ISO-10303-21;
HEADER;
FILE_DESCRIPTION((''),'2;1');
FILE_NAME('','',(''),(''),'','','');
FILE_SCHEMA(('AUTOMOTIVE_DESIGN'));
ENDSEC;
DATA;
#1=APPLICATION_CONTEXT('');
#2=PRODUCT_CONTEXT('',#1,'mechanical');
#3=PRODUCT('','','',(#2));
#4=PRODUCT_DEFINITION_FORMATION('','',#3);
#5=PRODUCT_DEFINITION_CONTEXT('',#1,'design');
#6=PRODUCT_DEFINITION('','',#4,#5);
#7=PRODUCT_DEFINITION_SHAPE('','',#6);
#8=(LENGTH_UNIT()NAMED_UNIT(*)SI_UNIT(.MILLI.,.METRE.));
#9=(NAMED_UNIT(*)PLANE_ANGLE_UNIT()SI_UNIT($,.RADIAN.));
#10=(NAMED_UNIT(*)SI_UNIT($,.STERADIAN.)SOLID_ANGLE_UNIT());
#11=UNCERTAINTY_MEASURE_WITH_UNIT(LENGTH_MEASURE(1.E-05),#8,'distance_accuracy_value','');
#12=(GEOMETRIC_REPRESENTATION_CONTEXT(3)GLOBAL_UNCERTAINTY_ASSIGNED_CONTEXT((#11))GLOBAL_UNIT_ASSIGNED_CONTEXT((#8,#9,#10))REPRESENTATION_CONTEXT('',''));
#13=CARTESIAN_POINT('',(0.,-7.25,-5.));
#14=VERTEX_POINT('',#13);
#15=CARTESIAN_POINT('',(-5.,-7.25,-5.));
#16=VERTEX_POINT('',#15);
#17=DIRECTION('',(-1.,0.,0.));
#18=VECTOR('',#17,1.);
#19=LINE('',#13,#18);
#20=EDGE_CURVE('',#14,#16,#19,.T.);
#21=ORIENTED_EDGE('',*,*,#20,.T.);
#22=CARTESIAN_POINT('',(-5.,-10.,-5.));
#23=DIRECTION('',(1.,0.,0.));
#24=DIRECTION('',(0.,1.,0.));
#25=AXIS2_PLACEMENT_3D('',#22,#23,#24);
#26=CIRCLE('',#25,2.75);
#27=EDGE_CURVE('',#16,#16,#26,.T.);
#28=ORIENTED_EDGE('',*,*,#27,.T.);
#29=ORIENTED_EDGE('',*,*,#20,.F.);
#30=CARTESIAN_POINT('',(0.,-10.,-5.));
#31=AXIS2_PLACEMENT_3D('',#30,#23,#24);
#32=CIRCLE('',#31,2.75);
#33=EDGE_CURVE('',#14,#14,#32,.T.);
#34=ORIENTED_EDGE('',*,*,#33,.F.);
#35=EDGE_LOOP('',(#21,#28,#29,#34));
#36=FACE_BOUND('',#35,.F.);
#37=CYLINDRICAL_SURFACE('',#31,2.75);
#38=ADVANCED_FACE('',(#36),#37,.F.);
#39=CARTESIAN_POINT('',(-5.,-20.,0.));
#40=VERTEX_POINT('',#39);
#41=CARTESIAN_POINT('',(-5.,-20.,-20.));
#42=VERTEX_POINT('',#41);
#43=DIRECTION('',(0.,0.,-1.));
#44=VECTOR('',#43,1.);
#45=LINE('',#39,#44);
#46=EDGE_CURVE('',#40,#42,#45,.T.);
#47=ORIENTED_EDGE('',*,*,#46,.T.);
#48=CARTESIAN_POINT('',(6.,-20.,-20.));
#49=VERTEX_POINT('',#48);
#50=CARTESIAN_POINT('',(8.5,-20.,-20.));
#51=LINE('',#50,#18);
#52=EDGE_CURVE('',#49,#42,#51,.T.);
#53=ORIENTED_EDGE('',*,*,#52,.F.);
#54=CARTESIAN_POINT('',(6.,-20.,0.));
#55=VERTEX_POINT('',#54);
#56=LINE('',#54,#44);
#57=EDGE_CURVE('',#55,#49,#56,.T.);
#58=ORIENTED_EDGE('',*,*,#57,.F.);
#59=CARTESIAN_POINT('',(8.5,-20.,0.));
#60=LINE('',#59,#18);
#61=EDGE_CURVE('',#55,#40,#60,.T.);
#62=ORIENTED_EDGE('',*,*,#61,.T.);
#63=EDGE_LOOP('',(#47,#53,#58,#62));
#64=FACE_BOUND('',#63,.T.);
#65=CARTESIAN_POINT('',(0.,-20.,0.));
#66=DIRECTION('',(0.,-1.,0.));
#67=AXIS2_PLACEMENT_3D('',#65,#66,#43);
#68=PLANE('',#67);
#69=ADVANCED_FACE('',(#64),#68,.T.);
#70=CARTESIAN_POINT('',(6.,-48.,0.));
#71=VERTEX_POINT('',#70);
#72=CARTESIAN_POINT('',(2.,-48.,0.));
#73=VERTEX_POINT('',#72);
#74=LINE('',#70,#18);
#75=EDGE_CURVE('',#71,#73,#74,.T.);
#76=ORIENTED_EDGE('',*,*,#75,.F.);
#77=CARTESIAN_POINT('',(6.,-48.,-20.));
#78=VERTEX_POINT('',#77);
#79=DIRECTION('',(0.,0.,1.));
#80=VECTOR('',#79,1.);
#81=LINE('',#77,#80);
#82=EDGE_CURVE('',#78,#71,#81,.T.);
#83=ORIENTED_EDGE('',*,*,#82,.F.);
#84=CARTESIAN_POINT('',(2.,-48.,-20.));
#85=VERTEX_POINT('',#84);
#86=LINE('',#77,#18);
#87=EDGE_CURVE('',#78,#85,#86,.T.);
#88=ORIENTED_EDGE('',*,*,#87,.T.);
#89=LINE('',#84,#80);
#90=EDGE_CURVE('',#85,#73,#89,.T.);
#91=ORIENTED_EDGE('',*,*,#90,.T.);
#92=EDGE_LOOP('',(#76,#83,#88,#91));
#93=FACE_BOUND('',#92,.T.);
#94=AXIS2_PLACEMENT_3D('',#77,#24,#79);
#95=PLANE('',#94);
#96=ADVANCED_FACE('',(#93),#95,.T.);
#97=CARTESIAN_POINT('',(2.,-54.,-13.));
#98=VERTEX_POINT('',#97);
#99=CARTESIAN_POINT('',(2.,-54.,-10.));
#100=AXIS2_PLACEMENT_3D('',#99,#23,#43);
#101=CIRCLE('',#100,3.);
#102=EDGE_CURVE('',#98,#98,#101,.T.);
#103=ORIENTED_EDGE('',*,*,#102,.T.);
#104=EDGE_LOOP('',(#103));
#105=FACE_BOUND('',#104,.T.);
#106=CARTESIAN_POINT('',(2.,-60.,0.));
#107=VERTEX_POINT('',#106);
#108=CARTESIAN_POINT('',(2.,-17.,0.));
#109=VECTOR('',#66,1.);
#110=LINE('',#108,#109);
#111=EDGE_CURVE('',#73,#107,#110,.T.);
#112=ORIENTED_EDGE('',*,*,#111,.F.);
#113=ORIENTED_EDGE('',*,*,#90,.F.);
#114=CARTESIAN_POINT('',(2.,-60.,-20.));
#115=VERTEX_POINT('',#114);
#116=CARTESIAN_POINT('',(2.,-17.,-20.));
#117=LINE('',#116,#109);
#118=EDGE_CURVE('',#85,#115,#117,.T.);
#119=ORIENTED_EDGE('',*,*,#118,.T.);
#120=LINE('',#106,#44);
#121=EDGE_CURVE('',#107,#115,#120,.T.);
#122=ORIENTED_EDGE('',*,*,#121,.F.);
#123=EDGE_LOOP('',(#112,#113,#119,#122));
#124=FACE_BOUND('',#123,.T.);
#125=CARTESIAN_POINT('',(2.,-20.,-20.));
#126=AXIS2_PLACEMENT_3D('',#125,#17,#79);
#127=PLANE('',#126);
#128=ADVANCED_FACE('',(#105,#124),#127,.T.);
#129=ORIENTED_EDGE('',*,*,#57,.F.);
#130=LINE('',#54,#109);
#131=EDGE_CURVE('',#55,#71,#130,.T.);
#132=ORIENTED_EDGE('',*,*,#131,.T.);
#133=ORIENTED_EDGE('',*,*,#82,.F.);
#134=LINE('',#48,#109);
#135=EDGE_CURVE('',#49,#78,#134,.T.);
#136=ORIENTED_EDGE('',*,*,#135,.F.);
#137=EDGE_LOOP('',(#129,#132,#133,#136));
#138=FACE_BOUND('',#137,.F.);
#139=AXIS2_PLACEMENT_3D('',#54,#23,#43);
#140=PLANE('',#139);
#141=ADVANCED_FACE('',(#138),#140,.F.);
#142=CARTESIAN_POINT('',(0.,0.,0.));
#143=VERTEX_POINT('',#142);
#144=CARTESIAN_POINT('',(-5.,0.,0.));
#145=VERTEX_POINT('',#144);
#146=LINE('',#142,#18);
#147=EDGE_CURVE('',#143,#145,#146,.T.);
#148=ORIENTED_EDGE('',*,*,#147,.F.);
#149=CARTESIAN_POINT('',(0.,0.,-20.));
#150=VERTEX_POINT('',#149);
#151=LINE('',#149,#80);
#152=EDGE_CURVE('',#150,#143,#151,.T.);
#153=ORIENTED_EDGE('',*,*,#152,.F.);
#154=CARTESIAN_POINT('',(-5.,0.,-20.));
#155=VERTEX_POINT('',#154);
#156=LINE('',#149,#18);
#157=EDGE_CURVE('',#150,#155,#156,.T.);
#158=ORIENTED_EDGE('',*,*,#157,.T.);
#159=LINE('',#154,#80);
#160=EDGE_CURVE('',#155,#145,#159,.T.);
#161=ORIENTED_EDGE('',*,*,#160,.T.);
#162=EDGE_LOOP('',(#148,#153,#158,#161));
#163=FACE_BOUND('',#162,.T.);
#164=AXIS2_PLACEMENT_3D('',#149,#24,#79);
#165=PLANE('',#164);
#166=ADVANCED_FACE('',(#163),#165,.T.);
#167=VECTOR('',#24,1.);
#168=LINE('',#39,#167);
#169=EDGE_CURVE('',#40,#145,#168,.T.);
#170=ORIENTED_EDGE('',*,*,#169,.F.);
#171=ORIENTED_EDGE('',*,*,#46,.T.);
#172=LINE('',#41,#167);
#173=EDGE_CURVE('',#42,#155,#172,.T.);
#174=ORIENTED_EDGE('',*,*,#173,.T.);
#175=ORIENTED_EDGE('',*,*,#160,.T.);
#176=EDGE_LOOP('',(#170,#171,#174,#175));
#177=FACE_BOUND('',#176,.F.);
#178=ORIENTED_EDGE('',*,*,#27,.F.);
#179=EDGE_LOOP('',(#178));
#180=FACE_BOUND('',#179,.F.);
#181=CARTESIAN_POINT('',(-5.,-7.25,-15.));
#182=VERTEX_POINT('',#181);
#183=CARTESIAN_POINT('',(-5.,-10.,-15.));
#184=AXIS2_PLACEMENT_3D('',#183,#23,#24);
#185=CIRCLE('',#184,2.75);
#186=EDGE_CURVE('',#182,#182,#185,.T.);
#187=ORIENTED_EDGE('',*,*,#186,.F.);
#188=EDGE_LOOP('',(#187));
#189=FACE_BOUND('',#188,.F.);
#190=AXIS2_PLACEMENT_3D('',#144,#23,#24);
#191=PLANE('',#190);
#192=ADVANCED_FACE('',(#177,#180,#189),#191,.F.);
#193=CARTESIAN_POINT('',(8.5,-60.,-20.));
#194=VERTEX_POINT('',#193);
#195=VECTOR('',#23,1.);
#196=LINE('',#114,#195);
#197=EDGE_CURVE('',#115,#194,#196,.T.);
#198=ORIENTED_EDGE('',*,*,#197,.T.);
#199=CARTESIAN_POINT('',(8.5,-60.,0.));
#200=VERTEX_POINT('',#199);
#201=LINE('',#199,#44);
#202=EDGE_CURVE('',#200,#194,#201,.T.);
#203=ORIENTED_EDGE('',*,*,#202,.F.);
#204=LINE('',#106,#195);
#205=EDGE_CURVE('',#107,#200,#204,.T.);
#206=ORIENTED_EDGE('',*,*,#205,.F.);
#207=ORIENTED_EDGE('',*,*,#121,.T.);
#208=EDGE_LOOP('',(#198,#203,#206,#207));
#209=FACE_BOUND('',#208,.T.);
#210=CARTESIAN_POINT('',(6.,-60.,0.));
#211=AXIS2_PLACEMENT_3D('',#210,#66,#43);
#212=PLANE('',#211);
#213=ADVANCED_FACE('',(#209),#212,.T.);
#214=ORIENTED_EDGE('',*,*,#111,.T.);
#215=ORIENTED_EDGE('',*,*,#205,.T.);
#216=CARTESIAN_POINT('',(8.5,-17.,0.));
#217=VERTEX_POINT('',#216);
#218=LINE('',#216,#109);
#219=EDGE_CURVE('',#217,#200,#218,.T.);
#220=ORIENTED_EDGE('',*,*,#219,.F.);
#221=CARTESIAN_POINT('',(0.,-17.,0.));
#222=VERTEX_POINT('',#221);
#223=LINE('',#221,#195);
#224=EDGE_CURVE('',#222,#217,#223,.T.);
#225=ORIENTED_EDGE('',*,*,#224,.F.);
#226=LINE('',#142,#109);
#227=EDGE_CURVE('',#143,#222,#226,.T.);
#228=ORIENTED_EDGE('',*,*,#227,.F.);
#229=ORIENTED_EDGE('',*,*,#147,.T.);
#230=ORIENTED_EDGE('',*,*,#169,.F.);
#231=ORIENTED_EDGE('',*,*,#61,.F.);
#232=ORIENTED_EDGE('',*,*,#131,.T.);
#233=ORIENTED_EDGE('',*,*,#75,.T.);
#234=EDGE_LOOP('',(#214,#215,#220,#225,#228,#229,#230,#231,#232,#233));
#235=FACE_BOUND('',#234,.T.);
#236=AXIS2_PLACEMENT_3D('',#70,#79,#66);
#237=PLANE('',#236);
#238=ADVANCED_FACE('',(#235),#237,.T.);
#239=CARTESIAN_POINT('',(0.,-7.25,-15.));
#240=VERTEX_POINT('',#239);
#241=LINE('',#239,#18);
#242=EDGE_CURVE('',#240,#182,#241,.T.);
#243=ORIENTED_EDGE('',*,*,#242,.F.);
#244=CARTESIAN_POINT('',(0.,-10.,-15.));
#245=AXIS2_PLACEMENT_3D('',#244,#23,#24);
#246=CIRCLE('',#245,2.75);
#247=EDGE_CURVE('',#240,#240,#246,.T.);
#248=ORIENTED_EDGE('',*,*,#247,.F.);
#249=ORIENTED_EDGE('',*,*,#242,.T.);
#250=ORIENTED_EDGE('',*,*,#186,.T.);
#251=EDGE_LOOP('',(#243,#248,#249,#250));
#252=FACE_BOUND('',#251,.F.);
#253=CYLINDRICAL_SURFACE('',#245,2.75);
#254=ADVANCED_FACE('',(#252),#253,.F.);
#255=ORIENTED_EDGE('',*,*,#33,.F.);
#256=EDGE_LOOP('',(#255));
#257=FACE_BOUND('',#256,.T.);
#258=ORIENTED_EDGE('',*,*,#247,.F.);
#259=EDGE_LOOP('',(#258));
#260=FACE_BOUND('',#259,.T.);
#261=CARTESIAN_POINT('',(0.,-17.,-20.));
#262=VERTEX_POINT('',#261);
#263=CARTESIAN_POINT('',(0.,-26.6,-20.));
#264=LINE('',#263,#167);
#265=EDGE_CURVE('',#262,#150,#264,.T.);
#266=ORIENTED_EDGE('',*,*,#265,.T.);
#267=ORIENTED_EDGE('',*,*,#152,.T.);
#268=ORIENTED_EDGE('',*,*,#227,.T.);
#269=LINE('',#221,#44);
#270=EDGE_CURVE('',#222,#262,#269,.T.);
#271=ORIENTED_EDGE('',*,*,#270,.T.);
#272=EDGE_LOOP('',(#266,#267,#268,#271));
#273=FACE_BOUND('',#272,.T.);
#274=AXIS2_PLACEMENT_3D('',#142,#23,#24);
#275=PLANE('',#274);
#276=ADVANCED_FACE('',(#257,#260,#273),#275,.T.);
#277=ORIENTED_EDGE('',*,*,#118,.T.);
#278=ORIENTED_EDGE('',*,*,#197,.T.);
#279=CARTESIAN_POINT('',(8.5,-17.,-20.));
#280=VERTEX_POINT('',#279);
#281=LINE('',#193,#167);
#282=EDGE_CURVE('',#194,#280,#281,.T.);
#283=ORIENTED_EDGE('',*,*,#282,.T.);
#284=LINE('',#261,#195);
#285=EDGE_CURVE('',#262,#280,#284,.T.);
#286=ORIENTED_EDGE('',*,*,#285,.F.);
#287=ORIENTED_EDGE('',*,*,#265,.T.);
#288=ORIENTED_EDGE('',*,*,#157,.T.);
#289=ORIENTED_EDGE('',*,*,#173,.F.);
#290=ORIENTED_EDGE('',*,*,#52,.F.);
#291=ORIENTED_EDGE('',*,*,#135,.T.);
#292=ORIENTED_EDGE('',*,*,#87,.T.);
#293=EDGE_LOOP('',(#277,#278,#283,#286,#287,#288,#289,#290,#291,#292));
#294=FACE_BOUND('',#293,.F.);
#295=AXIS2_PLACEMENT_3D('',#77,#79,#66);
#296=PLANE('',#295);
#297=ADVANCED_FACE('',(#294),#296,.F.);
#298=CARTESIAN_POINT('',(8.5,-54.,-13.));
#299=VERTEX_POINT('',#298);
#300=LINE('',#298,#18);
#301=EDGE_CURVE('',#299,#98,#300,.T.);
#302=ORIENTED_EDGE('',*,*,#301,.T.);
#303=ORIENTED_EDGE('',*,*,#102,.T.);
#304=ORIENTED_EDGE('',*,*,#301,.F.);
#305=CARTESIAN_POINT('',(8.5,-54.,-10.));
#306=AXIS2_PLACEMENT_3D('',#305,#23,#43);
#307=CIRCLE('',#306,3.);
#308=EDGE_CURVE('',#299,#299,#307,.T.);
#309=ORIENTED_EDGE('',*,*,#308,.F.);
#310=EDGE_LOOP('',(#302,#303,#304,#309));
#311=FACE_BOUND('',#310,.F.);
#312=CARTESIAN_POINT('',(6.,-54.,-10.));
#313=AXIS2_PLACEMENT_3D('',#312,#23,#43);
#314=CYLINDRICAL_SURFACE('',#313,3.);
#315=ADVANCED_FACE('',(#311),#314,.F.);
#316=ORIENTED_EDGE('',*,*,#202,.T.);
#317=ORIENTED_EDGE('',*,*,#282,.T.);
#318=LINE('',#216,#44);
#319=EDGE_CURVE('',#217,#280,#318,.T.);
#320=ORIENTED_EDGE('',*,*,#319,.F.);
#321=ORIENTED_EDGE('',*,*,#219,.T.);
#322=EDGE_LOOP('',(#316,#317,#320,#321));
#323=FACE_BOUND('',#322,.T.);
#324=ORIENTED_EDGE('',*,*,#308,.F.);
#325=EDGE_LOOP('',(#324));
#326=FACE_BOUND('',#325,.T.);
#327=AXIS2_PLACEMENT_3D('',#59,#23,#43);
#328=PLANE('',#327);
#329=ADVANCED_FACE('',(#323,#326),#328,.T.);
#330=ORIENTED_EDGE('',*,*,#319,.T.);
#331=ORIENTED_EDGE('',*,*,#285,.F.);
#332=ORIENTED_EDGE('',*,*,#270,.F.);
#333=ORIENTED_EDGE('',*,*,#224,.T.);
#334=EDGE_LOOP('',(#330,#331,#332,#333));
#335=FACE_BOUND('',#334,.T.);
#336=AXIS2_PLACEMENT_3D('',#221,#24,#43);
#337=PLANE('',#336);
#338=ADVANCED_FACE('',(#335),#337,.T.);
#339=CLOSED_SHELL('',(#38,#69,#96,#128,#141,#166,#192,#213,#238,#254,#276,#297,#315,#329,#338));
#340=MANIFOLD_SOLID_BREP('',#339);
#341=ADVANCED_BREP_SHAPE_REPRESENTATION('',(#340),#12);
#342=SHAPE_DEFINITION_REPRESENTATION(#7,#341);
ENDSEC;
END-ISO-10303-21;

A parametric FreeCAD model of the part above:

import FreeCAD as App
import Part
import Sketcher

V = App.Vector

doc = App.newDocument("Part")
body = doc.addObject("PartDesign::Body", "Body")
body.AllowCompound = True

sketch1 = doc.addObject("Sketcher::SketchObject", "Sketch")
body.addObject(sketch1)
sketch1.AttachmentSupport = (doc.YZ_Plane, [""])
sketch1.MapMode = "FlatFace"
sketch1.addGeometry([
    Part.LineSegment(V(-17, -20, 0), V(-17, 0, 0)),
    Part.LineSegment(V(-17, 0, 0), V(-20, 0, 0)),
    Part.LineSegment(V(-20, 0, 0), V(-20, -20, 0)),
    Part.LineSegment(V(-20, -20, 0), V(-17, -20, 0)),
], False)
sketch1.addConstraint([
    Sketcher.Constraint("Coincident", 0, 2, 1, 1),
    Sketcher.Constraint("Coincident", 1, 2, 2, 1),
    Sketcher.Constraint("Coincident", 2, 2, 3, 1),
    Sketcher.Constraint("Coincident", 3, 2, 0, 1),
    Sketcher.Constraint("Vertical", 0),
    Sketcher.Constraint("Horizontal", 1),
    Sketcher.Constraint("Vertical", 2),
    Sketcher.Constraint("Horizontal", 3),
    Sketcher.Constraint("PointOnObject", 0, 2, -1),
    Sketcher.Constraint("DistanceX", 1, 2, 1, 1, 3.0),
    Sketcher.Constraint("DistanceY", 0, 1, 0, 2, 20.0),
    Sketcher.Constraint("DistanceX", 1, 2, -1, 1, 20.0),
])
pad1 = doc.addObject("PartDesign::Pad", "Pad")
body.addObject(pad1)
pad1.Profile = sketch1
pad1.Length = 8.5

sketch2 = doc.addObject("Sketcher::SketchObject", "Sketch001")
body.addObject(sketch2)
sketch2.AttachmentSupport = (doc.YZ_Plane, [""])
sketch2.MapMode = "FlatFace"
sketch2.addGeometry([
    Part.LineSegment(V(0, -20, 0), V(0, 0, 0)),
    Part.LineSegment(V(0, 0, 0), V(-17, 0, 0)),
    Part.LineSegment(V(-17, 0, 0), V(-17, -20, 0)),
    Part.LineSegment(V(-17, -20, 0), V(0, -20, 0)),
    Part.Circle(V(-10, -15, 0), V(0, 0, 1), 2.8),
    Part.Circle(V(-10, -5, 0), V(0, 0, 1), 2.8),
], False)
sketch2.addConstraint([
    Sketcher.Constraint("Coincident", 0, 2, 1, 1),
    Sketcher.Constraint("Coincident", 1, 2, 2, 1),
    Sketcher.Constraint("Coincident", 2, 2, 3, 1),
    Sketcher.Constraint("Coincident", 3, 2, 0, 1),
    Sketcher.Constraint("Vertical", 0),
    Sketcher.Constraint("Horizontal", 1),
    Sketcher.Constraint("Vertical", 2),
    Sketcher.Constraint("Horizontal", 3),
    Sketcher.Constraint("Coincident", 0, 2, -1, 1),
    Sketcher.Constraint("Equal", 4, 5),
    Sketcher.Constraint("Vertical", 4, 3, 5, 3),
    Sketcher.Constraint("Diameter", 4, 5.5),
    Sketcher.Constraint("DistanceY", 0, 1, 0, 2, 20.0),
    Sketcher.Constraint("DistanceX", 4, 3, -1, 1, 10.0),
    Sketcher.Constraint("DistanceY", 5, 3, -1, 1, 5.0),
    Sketcher.Constraint("DistanceY", 4, 3, 5, 3, 10.0),
    Sketcher.Constraint("DistanceX", 1, 2, 1, 1, 17.0),
])
pad2 = doc.addObject("PartDesign::Pad", "Pad001")
body.addObject(pad2)
pad2.Profile = sketch2
pad2.Length = 5
pad2.Reversed = True

sketch3 = doc.addObject("Sketcher::SketchObject", "Sketch002")
body.addObject(sketch3)
sketch3.AttachmentSupport = (doc.YZ_Plane, [""])
sketch3.MapMode = "FlatFace"
sketch3.addGeometry([
    Part.LineSegment(V(-17, -20, 0), V(-17, 0, 0)),
    Part.LineSegment(V(-17, 0, 0), V(-20, 0, 0)),
    Part.LineSegment(V(-20, 0, 0), V(-20, -20, 0)),
    Part.LineSegment(V(-20, -20, 0), V(-17, -20, 0)),
], False)
sketch3.addConstraint([
    Sketcher.Constraint("Coincident", 0, 2, 1, 1),
    Sketcher.Constraint("Coincident", 1, 2, 2, 1),
    Sketcher.Constraint("Coincident", 2, 2, 3, 1),
    Sketcher.Constraint("Coincident", 3, 2, 0, 1),
    Sketcher.Constraint("Vertical", 0),
    Sketcher.Constraint("Horizontal", 1),
    Sketcher.Constraint("Vertical", 2),
    Sketcher.Constraint("Horizontal", 3),
    Sketcher.Constraint("PointOnObject", 0, 2, -1),
    Sketcher.Constraint("DistanceX", 1, 2, 1, 1, 3.0),
    Sketcher.Constraint("DistanceY", 0, 1, 0, 2, 20.0),
    Sketcher.Constraint("DistanceX", 1, 2, -1, 1, 20.0),
])
pad3 = doc.addObject("PartDesign::Pad", "Pad002")
body.addObject(pad3)
pad3.Profile = sketch3
pad3.Length = 5
pad3.Reversed = True

sketch4 = doc.addObject("Sketcher::SketchObject", "Sketch003")
body.addObject(sketch4)
sketch4.AttachmentSupport = (doc.XZ_Plane, [""])
sketch4.MapMode = "FlatFace"
sketch4.AttachmentOffset = App.Placement(V(0, 0, 20), App.Rotation())
sketch4.addGeometry([
    Part.LineSegment(V(8.5, -20, 0), V(8.5, 0, 0)),
    Part.LineSegment(V(8.5, 0, 0), V(6, 0, 0)),
    Part.LineSegment(V(6, 0, 0), V(6, -20, 0)),
    Part.LineSegment(V(6, -20, 0), V(8.5, -20, 0)),
], False)
sketch4.addConstraint([
    Sketcher.Constraint("Coincident", 0, 2, 1, 1),
    Sketcher.Constraint("Coincident", 1, 2, 2, 1),
    Sketcher.Constraint("Coincident", 2, 2, 3, 1),
    Sketcher.Constraint("Coincident", 3, 2, 0, 1),
    Sketcher.Constraint("Vertical", 0),
    Sketcher.Constraint("Horizontal", 1),
    Sketcher.Constraint("Vertical", 2),
    Sketcher.Constraint("Horizontal", 3),
    Sketcher.Constraint("PointOnObject", 0, 2, -1),
    Sketcher.Constraint("DistanceX", 1, 2, 1, 1, 2.5),
    Sketcher.Constraint("DistanceY", 0, 1, 0, 2, 20.0),
    Sketcher.Constraint("DistanceX", -1, 1, 1, 2, 6.0),
])
pad4 = doc.addObject("PartDesign::Pad", "Pad003")
body.addObject(pad4)
pad4.Profile = sketch4
pad4.Length = 40

sketch5 = doc.addObject("Sketcher::SketchObject", "Sketch004")
body.addObject(sketch5)
sketch5.AttachmentSupport = (doc.YZ_Plane, [""])
sketch5.MapMode = "FlatFace"
sketch5.AttachmentOffset = App.Placement(V(0, 0, 8.5), App.Rotation())
sketch5.addGeometry(Part.Circle(V(-54, -10, 0), V(0, 0, 1), 3), False)
sketch5.addConstraint([
    Sketcher.Constraint("Diameter", 0, 6.0),
    Sketcher.Constraint("DistanceX", 0, 3, -1, 1, 54.0),
    Sketcher.Constraint("DistanceY", 0, 3, -1, 1, 10.0),
])
pocket1 = doc.addObject("PartDesign::Pocket", "Pocket")
body.addObject(pocket1)
pocket1.Profile = sketch5
pocket1.Length = 7.5

sketch6 = doc.addObject("Sketcher::SketchObject", "Sketch005")
body.addObject(sketch6)
sketch6.AttachmentSupport = (doc.YZ_Plane, [""])
sketch6.MapMode = "FlatFace"
sketch6.AttachmentOffset = App.Placement(V(0, 0, 6), App.Rotation())
sketch6.addGeometry([
    Part.LineSegment(V(-60, 0, 0), V(-48, 0, 0)),
    Part.LineSegment(V(-48, 0, 0), V(-48, -20, 0)),
    Part.LineSegment(V(-48, -20, 0), V(-60, -20, 0)),
    Part.LineSegment(V(-60, -20, 0), V(-60, 0, 0)),
], False)
sketch6.addConstraint([
    Sketcher.Constraint("Coincident", 0, 2, 1, 1),
    Sketcher.Constraint("Coincident", 1, 2, 2, 1),
    Sketcher.Constraint("Coincident", 2, 2, 3, 1),
    Sketcher.Constraint("Coincident", 3, 2, 0, 1),
    Sketcher.Constraint("Horizontal", 0),
    Sketcher.Constraint("Vertical", 1),
    Sketcher.Constraint("Horizontal", 2),
    Sketcher.Constraint("Vertical", 3),
    Sketcher.Constraint("PointOnObject", 0, 2, -1),
    Sketcher.Constraint("DistanceX", 0, 1, 0, 2, 12.0),
    Sketcher.Constraint("DistanceY", 1, 2, 1, 1, 20.0),
    Sketcher.Constraint("DistanceX", 0, 2, -1, 1, 48.0),
])
pad5 = doc.addObject("PartDesign::Pad", "Pad004")
body.addObject(pad5)
pad5.Profile = sketch6
pad5.Length = 4
pad5.Reversed = True

sketch7 = doc.addObject("Sketcher::SketchObject", "Sketch006")
body.addObject(sketch7)
sketch7.AttachmentSupport = (doc.YZ_Plane, [""])
sketch7.MapMode = "FlatFace"
sketch7.AttachmentOffset = App.Placement(V(0, 0, 6), App.Rotation())
sketch7.addGeometry(Part.Circle(V(-54, -10, 0), V(0, 0, 1), 3), False)
sketch7.addConstraint([
    Sketcher.Constraint("Diameter", 0, 6.0),
    Sketcher.Constraint("DistanceX", 0, 3, -1, 1, 54.0),
    Sketcher.Constraint("DistanceY", 0, 3, -1, 1, 10.0),
])
pocket2 = doc.addObject("PartDesign::Pocket", "Pocket001")
body.addObject(pocket2)
pocket2.Profile = sketch7
pocket2.Length = 4

doc.recompute()
